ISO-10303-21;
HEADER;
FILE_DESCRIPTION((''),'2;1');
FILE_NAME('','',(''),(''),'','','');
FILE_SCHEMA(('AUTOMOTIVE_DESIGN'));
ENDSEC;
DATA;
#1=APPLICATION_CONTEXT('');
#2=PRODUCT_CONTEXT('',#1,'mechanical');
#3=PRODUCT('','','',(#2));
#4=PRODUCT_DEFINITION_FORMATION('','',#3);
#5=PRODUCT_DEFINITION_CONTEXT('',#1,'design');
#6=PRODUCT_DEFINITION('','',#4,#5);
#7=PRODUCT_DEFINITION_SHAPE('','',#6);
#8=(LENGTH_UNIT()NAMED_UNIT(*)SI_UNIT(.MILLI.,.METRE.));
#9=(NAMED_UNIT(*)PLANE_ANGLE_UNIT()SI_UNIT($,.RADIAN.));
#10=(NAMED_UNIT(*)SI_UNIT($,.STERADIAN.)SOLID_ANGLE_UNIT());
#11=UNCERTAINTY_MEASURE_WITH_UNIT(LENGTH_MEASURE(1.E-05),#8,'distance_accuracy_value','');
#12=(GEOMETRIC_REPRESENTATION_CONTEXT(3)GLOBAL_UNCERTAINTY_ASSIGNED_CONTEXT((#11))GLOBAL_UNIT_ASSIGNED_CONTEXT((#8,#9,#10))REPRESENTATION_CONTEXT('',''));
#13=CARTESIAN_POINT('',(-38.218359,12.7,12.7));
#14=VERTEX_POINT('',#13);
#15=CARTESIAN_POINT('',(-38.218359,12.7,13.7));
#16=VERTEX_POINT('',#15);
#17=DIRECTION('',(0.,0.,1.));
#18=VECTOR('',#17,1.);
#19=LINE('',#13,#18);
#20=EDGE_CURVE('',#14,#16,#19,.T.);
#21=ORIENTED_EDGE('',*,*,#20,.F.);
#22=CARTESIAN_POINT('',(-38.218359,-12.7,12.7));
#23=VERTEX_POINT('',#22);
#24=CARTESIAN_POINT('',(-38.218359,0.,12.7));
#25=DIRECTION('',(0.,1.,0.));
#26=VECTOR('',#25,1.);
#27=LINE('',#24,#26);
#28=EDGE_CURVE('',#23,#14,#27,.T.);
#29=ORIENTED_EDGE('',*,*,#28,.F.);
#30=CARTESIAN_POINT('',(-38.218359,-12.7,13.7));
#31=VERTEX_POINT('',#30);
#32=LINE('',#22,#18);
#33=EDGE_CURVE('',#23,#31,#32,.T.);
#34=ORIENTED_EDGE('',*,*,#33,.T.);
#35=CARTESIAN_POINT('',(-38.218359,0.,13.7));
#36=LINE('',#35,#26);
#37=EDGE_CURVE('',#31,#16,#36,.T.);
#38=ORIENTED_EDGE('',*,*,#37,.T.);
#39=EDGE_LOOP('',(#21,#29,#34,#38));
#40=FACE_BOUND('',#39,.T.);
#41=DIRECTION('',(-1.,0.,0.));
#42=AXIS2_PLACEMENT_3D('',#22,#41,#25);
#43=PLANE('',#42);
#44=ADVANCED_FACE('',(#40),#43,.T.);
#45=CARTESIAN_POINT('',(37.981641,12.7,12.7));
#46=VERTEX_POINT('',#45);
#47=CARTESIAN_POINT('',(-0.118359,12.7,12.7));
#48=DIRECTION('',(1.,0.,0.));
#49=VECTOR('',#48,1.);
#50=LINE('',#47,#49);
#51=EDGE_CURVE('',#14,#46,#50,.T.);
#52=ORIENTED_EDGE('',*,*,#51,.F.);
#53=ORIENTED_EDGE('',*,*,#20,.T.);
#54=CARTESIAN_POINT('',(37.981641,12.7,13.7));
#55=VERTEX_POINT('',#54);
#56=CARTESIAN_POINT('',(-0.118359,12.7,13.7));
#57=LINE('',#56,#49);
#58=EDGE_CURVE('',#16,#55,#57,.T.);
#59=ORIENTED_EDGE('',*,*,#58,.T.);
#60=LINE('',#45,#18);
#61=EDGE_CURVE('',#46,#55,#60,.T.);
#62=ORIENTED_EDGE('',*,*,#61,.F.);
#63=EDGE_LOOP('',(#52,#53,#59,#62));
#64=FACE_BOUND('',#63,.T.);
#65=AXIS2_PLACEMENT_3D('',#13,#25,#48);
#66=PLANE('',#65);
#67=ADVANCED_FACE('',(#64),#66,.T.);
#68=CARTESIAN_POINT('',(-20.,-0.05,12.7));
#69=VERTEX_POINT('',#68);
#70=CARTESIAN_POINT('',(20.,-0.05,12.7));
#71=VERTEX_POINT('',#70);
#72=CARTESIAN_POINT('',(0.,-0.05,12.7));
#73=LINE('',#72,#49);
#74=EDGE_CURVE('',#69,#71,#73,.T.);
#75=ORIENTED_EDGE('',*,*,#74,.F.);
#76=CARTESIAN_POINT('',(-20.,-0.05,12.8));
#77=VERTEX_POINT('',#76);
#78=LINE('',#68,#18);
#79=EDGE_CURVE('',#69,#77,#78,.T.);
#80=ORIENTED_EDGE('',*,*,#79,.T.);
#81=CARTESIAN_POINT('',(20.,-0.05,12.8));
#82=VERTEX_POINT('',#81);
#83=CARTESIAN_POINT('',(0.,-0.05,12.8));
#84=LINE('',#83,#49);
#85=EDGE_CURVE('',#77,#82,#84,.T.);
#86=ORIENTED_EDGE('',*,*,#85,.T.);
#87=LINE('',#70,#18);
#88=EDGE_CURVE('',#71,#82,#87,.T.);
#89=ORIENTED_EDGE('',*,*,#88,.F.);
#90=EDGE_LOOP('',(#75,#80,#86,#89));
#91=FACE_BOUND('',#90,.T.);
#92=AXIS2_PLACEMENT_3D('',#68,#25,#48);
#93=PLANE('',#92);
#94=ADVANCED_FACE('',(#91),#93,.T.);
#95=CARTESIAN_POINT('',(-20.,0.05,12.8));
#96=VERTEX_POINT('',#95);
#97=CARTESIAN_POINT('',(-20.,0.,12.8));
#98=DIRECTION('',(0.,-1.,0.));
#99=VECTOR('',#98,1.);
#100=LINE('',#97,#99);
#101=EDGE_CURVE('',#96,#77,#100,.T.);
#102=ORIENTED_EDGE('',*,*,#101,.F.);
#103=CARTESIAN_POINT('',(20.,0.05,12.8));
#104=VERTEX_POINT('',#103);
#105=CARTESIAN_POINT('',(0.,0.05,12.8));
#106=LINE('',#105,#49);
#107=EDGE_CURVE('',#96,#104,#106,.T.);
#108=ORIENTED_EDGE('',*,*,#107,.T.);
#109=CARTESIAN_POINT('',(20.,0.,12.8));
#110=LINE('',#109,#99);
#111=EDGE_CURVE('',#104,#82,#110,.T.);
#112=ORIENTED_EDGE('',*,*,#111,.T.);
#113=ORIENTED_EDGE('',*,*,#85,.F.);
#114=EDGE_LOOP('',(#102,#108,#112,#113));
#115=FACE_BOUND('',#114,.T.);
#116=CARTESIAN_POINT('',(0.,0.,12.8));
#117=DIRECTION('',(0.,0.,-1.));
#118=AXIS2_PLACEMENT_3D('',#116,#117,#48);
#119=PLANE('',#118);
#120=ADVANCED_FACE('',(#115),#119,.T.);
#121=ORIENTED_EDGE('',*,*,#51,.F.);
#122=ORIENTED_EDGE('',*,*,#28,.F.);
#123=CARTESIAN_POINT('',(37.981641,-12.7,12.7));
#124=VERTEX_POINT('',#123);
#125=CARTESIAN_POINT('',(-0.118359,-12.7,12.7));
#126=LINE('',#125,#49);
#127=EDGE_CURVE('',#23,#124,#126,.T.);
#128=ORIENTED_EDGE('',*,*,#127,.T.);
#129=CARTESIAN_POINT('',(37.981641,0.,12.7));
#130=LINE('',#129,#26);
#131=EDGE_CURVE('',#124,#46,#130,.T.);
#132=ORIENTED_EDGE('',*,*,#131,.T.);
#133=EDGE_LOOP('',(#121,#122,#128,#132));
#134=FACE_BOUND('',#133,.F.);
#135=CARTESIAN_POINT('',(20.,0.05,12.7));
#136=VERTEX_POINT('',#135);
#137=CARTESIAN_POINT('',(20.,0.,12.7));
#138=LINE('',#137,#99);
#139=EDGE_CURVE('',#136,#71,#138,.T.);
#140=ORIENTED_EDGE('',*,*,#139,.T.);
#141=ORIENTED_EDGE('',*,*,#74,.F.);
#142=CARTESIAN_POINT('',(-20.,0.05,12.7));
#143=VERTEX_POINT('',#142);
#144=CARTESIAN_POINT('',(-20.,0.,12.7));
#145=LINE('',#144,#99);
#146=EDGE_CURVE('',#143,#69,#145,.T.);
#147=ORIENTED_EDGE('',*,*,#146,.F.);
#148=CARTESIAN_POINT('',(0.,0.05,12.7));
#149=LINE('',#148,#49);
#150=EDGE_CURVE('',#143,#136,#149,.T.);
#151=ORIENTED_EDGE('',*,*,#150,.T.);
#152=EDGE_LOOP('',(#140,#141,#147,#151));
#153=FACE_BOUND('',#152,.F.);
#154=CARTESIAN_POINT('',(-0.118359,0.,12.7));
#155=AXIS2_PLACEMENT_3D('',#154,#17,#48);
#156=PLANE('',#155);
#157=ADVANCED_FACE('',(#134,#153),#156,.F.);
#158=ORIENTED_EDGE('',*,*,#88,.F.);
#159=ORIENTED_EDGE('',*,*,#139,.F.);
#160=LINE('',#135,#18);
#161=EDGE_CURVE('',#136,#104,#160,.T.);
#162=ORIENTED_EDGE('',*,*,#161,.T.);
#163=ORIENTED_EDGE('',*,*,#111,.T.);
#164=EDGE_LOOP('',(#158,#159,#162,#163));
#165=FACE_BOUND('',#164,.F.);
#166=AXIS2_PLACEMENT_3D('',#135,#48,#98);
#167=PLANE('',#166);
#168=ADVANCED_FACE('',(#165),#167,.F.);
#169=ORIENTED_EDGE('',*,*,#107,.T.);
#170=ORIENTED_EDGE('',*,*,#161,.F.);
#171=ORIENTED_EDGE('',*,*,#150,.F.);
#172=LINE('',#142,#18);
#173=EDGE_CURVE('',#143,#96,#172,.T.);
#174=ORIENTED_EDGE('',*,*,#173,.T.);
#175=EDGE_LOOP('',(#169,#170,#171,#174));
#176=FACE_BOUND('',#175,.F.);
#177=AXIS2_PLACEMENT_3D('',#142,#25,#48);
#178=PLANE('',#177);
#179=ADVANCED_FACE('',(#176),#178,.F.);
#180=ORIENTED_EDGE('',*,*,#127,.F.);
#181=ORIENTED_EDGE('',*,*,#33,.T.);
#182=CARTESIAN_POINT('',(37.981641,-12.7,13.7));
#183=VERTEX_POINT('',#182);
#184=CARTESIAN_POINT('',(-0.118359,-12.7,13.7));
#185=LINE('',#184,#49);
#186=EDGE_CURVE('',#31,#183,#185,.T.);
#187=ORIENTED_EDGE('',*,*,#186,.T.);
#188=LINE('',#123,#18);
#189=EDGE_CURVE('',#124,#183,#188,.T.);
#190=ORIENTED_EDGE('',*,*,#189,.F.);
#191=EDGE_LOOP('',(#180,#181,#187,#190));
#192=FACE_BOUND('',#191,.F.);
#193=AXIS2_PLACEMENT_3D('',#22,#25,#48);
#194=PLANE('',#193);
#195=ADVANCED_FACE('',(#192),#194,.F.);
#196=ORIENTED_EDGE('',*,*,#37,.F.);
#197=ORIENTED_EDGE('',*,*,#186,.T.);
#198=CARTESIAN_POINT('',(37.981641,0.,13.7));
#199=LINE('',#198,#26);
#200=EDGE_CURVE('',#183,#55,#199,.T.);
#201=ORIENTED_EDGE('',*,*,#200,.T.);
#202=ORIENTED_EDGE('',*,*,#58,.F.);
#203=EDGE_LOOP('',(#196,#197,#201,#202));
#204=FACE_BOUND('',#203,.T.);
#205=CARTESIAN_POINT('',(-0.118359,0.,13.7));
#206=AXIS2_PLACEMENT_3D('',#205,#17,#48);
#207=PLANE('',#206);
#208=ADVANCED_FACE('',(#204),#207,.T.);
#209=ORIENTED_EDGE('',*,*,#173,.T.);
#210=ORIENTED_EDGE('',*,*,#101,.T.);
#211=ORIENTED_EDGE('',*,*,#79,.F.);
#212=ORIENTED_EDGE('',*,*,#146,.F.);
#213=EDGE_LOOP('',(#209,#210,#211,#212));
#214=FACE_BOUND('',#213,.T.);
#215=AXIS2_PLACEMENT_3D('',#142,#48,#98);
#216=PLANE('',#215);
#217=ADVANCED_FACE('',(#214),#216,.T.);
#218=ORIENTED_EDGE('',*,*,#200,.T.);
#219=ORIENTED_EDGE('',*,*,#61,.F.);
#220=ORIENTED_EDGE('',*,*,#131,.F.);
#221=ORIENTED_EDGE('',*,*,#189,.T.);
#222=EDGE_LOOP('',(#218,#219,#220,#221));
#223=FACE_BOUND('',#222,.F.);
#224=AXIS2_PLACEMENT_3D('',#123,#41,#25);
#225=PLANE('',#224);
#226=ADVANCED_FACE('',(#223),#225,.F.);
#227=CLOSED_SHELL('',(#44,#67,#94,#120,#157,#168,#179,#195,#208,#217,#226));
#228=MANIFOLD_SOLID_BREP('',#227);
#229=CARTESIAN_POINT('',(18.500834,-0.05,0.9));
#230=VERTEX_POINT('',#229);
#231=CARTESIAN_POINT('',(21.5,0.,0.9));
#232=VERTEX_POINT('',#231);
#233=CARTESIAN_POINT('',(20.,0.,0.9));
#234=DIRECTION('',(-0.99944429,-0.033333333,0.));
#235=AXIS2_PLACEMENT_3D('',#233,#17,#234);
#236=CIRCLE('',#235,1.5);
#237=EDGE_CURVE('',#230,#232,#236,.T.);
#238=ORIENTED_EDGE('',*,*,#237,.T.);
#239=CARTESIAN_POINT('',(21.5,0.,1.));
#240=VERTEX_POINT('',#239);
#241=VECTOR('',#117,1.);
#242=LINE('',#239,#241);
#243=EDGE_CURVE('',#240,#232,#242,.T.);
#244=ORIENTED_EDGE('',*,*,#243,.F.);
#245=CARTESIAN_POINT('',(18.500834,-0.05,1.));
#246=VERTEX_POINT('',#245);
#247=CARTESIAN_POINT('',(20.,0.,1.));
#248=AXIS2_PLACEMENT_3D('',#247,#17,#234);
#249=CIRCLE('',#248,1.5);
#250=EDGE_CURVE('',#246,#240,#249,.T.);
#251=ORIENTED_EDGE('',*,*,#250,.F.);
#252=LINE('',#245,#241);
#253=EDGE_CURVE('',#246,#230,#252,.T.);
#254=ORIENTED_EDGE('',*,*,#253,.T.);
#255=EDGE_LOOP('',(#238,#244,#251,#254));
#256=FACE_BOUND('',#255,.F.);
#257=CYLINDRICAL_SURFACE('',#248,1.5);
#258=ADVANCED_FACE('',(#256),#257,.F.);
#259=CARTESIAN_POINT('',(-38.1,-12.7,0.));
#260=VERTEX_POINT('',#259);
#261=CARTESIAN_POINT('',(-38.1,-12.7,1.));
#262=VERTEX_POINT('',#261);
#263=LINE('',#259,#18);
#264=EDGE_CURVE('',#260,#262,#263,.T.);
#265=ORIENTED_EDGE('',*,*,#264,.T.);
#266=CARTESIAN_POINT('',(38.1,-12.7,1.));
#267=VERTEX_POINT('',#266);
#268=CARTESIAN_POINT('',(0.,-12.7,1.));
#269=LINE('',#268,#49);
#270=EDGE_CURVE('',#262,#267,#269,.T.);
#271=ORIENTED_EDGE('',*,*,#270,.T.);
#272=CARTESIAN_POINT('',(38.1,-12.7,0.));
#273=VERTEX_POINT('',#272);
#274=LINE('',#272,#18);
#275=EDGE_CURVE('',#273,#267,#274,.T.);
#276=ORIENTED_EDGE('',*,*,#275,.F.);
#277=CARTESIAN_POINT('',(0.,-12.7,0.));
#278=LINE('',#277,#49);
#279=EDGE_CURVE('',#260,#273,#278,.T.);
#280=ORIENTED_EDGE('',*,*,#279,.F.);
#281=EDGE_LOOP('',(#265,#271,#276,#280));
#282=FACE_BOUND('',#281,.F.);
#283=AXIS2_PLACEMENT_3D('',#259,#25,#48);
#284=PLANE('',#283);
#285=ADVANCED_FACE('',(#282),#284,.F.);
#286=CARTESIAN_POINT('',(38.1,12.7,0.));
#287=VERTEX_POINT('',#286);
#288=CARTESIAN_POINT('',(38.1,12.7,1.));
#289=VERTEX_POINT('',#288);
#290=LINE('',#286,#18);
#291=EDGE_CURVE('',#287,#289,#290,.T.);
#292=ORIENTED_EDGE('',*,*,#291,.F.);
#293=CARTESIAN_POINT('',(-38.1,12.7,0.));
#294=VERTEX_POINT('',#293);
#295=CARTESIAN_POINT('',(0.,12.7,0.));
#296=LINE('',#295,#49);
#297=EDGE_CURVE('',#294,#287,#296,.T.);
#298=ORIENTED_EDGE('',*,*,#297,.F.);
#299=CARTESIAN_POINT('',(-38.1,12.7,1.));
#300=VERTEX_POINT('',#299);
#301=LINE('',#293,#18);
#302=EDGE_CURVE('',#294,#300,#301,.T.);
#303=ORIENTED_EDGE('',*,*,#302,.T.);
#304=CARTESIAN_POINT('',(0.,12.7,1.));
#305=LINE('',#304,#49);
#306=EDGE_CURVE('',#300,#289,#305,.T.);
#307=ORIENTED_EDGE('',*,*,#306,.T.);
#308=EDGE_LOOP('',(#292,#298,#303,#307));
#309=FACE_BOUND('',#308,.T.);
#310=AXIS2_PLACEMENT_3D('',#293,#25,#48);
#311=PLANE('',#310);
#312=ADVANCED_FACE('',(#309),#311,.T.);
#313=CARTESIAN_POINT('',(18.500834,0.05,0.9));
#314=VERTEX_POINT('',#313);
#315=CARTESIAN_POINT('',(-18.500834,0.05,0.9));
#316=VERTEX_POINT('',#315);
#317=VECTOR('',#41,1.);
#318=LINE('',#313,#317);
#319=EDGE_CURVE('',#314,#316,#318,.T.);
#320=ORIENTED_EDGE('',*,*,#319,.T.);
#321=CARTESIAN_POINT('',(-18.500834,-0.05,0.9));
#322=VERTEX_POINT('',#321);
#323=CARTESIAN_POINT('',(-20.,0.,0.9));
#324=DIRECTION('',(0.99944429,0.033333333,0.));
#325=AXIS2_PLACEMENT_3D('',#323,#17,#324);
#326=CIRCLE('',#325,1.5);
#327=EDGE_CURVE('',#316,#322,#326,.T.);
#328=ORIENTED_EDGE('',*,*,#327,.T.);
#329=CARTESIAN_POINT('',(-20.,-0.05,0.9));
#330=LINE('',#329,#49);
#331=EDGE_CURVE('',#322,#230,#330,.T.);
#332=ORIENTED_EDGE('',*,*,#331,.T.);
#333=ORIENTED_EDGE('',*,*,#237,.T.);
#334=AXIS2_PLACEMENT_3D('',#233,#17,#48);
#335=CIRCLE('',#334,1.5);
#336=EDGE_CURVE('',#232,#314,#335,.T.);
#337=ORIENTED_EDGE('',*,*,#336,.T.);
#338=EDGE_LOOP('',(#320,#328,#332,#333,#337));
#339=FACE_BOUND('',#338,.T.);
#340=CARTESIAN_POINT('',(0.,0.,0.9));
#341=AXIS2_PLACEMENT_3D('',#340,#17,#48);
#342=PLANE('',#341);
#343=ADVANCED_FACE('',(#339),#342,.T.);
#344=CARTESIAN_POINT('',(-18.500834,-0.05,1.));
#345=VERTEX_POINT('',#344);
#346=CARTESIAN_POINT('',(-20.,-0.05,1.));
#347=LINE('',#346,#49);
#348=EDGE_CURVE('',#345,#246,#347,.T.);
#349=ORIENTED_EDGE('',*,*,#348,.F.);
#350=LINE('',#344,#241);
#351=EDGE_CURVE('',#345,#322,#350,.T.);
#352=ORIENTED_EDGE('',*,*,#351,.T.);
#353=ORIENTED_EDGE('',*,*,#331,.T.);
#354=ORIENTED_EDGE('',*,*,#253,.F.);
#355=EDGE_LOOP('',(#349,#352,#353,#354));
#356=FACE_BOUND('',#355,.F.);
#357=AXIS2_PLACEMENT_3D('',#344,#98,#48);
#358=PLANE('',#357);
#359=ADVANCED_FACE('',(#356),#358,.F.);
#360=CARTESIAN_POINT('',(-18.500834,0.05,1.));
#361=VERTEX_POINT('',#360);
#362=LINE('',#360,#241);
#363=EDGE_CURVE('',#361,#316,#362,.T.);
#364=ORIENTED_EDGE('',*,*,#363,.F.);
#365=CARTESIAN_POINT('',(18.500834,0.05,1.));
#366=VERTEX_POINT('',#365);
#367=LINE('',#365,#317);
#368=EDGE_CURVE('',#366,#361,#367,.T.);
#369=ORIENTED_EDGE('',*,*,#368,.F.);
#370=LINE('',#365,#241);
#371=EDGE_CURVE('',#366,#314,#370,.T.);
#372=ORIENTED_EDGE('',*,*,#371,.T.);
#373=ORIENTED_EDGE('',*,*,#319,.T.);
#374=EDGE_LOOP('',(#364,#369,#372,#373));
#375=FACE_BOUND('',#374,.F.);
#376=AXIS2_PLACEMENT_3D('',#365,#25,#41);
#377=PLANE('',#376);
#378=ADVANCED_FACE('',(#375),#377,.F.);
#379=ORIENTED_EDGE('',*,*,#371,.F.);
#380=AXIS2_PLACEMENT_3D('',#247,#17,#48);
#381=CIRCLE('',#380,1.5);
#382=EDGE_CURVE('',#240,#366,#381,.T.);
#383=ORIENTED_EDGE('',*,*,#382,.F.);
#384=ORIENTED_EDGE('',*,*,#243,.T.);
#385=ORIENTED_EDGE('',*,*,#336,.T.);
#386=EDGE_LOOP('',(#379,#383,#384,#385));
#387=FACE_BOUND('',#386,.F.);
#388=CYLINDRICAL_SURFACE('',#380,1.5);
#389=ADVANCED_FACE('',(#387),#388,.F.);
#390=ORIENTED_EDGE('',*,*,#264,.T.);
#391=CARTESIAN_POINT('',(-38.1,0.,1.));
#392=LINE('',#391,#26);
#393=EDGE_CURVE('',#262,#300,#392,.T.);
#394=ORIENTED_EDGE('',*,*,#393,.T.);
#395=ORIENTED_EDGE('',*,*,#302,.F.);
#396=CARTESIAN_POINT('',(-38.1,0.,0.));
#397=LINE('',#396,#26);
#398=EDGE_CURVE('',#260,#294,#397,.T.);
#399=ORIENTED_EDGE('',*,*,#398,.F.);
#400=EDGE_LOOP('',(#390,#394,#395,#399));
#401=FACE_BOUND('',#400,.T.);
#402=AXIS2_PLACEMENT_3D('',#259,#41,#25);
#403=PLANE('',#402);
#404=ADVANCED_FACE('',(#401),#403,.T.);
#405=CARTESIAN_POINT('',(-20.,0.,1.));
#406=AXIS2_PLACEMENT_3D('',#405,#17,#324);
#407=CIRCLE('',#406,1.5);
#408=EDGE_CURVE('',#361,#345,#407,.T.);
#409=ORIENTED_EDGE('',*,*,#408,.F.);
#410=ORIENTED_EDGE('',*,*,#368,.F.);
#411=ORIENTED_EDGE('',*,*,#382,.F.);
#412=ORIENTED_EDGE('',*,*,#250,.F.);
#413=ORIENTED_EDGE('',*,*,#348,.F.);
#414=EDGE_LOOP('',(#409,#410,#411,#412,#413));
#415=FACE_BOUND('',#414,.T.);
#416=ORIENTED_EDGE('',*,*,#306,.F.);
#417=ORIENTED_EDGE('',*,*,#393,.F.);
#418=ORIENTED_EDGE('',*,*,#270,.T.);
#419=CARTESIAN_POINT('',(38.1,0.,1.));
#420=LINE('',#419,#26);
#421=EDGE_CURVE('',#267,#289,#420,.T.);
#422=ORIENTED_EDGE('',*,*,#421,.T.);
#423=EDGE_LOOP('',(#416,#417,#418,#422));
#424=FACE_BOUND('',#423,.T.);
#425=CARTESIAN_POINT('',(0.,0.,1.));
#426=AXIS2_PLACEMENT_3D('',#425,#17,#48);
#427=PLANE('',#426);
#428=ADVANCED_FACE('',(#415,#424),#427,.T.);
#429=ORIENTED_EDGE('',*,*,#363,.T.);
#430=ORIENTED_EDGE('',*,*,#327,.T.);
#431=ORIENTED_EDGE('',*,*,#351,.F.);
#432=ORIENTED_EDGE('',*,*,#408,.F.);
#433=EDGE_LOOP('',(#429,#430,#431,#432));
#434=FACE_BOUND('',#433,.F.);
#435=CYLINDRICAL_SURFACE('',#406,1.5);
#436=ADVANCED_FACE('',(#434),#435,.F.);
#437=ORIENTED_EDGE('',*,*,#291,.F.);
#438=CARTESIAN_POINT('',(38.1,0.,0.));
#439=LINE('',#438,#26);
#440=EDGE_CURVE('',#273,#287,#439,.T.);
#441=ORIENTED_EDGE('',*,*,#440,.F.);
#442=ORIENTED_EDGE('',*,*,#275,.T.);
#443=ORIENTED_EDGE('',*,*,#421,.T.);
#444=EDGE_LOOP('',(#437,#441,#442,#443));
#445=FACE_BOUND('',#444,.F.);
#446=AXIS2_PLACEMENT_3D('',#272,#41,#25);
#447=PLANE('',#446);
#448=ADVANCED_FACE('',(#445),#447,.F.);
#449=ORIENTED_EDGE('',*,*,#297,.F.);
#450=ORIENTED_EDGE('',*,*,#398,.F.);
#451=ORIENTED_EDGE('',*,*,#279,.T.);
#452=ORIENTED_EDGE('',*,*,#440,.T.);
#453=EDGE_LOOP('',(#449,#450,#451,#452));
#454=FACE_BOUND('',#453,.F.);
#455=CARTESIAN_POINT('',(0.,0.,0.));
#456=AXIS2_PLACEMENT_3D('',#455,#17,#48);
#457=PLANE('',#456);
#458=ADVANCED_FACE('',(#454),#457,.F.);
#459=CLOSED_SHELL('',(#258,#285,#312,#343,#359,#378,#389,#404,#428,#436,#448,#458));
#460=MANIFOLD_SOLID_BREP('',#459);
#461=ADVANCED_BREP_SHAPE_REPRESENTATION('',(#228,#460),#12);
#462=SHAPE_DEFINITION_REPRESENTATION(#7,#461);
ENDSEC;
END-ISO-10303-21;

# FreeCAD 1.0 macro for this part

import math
import FreeCAD as App
import Part
import Sketcher

V = App.Vector

doc = App.newDocument("Part")
body = doc.addObject("PartDesign::Body", "Body")

sketch1 = body.newObject("Sketcher::SketchObject", "Sketch")
sketch1.AttachmentSupport = (doc.getObject("XY_Plane"), [""])
sketch1.MapMode = "FlatFace"
sketch1.addGeometry([
    Part.LineSegment(V(-38, 13, 0), V(-38, -13, 0)),
    Part.LineSegment(V(-38, -13, 0), V(38, -13, 0)),
    Part.LineSegment(V(38, -13, 0), V(38, 13, 0)),
    Part.LineSegment(V(38, 13, 0), V(-38, 13, 0)),
], False)
sketch1.addConstraint([
    Sketcher.Constraint("Coincident", 0, 2, 1, 1),
    Sketcher.Constraint("Coincident", 1, 2, 2, 1),
    Sketcher.Constraint("Coincident", 2, 2, 3, 1),
    Sketcher.Constraint("Coincident", 3, 2, 0, 1),
    Sketcher.Constraint("Vertical", 0),
    Sketcher.Constraint("Horizontal", 1),
    Sketcher.Constraint("Vertical", 2),
    Sketcher.Constraint("Horizontal", 3),
    Sketcher.Constraint("Symmetric", 0, 2, 2, 2, -1, 1),
    Sketcher.Constraint("DistanceX", 1, 1, 1, 2, 76.2),
    Sketcher.Constraint("DistanceY", 0, 2, 0, 1, 25.4),
])
pad1 = body.newObject("PartDesign::Pad", "Pad")
pad1.Profile = sketch1
pad1.Length = 1

sketch2 = body.newObject("Sketcher::SketchObject", "Sketch001")
sketch2.AttachmentSupport = (doc.getObject("XY_Plane"), [""])
sketch2.MapMode = "FlatFace"
sketch2.AttachmentOffset = App.Placement(V(0, 0, 1), App.Rotation())
sketch2.addGeometry([
    Part.LineSegment(V(18.5, 0.05, 0), V(-18.5, 0.05, 0)),
    Part.ArcOfCircle(Part.Circle(V(-20, 0, 0), V(0, 0, 1), 1.5), math.radians(2), math.radians(358)),
    Part.LineSegment(V(-18.5, -0.05, 0), V(18.5, -0.05, 0)),
    Part.ArcOfCircle(Part.Circle(V(20, 0, 0), V(0, 0, 1), 1.5), math.radians(-178), math.radians(0)),
    Part.ArcOfCircle(Part.Circle(V(20, 0, 0), V(0, 0, 1), 1.5), math.radians(0), math.radians(178)),
], False)
sketch2.addConstraint([
    Sketcher.Constraint("Coincident", 0, 2, 1, 1),
    Sketcher.Constraint("Coincident", 1, 2, 2, 1),
    Sketcher.Constraint("Coincident", 2, 2, 3, 1),
    Sketcher.Constraint("Tangent", 3, 2, 4, 1),
    Sketcher.Constraint("Coincident", 4, 2, 0, 1),
    Sketcher.Constraint("Horizontal", 0),
    Sketcher.Constraint("Horizontal", 2),
    Sketcher.Constraint("Equal", 1, 3),
    Sketcher.Constraint("Equal", 3, 4),
    Sketcher.Constraint("Symmetric", 1, 3, 3, 3, -1, 1),
    Sketcher.Constraint("Symmetric", 0, 2, 1, 2, -1),
    Sketcher.Constraint("PointOnObject", 3, 2, -1),
    Sketcher.Constraint("Radius", 1, 1.5),
    Sketcher.Constraint("DistanceX", 1, 3, -1, 1, 20.0),
    Sketcher.Constraint("DistanceY", 1, 2, 0, 2, 0.1),
])
pocket1 = body.newObject("PartDesign::Pocket", "Pocket")
pocket1.Profile = sketch2
pocket1.Length = 0.1
body2 = doc.addObject("PartDesign::Body", "Body001")

sketch3 = body2.newObject("Sketcher::SketchObject", "Sketch002")
sketch3.AttachmentSupport = (doc.getObject("XY_Plane001"), [""])
sketch3.MapMode = "FlatFace"
sketch3.AttachmentOffset = App.Placement(V(0, 0, 12.7), App.Rotation())
sketch3.addGeometry([
    Part.LineSegment(V(-38, 13, 0), V(-38, -13, 0)),
    Part.LineSegment(V(-38, -13, 0), V(38, -13, 0)),
    Part.LineSegment(V(38, -13, 0), V(38, 13, 0)),
    Part.LineSegment(V(38, 13, 0), V(-38, 13, 0)),
], False)
sketch3.addConstraint([
    Sketcher.Constraint("Coincident", 0, 2, 1, 1),
    Sketcher.Constraint("Coincident", 1, 2, 2, 1),
    Sketcher.Constraint("Coincident", 2, 2, 3, 1),
    Sketcher.Constraint("Coincident", 3, 2, 0, 1),
    Sketcher.Constraint("Vertical", 0),
    Sketcher.Constraint("Horizontal", 1),
    Sketcher.Constraint("Vertical", 2),
    Sketcher.Constraint("Horizontal", 3),
    Sketcher.Constraint("DistanceX", 1, 1, 1, 2, 76.2),
    Sketcher.Constraint("DistanceY", 0, 2, 0, 1, 25.4),
    Sketcher.Constraint("DistanceY", 0, 2, -1, 1, 12.7),
    Sketcher.Constraint("DistanceX", 0, 2, -1, 1, 38.218359),
])
pad2 = body2.newObject("PartDesign::Pad", "Pad001")
pad2.Profile = sketch3
pad2.Length = 1

sketch4 = body2.newObject("Sketcher::SketchObject", "Sketch003")
sketch4.AttachmentSupport = (doc.getObject("XY_Plane001"), [""])
sketch4.MapMode = "FlatFace"
sketch4.AttachmentOffset = App.Placement(V(0, 0, 12.7), App.Rotation())
sketch4.addGeometry([
    Part.LineSegment(V(-20, -0.05, 0), V(-20, 0.05, 0)),
    Part.LineSegment(V(-20, 0.05, 0), V(20, 0.05, 0)),
    Part.LineSegment(V(20, 0.05, 0), V(20, -0.05, 0)),
    Part.LineSegment(V(20, -0.05, 0), V(-20, -0.05, 0)),
], False)
sketch4.addConstraint([
    Sketcher.Constraint("Coincident", 0, 2, 1, 1),
    Sketcher.Constraint("Coincident", 1, 2, 2, 1),
    Sketcher.Constraint("Coincident", 2, 2, 3, 1),
    Sketcher.Constraint("Coincident", 3, 2, 0, 1),
    Sketcher.Constraint("Vertical", 0),
    Sketcher.Constraint("Horizontal", 1),
    Sketcher.Constraint("Vertical", 2),
    Sketcher.Constraint("Horizontal", 3),
    Sketcher.Constraint("Symmetric", 0, 2, 2, 2, -1, 1),
    Sketcher.Constraint("DistanceX", 1, 1, 1, 2, 40.0),
    Sketcher.Constraint("DistanceY", 0, 1, 0, 2, 0.1),
])
pocket2 = body2.newObject("PartDesign::Pocket", "Pocket001")
pocket2.Profile = sketch4
pocket2.Length = 0.1
pocket2.Reversed = True

doc.recompute()
